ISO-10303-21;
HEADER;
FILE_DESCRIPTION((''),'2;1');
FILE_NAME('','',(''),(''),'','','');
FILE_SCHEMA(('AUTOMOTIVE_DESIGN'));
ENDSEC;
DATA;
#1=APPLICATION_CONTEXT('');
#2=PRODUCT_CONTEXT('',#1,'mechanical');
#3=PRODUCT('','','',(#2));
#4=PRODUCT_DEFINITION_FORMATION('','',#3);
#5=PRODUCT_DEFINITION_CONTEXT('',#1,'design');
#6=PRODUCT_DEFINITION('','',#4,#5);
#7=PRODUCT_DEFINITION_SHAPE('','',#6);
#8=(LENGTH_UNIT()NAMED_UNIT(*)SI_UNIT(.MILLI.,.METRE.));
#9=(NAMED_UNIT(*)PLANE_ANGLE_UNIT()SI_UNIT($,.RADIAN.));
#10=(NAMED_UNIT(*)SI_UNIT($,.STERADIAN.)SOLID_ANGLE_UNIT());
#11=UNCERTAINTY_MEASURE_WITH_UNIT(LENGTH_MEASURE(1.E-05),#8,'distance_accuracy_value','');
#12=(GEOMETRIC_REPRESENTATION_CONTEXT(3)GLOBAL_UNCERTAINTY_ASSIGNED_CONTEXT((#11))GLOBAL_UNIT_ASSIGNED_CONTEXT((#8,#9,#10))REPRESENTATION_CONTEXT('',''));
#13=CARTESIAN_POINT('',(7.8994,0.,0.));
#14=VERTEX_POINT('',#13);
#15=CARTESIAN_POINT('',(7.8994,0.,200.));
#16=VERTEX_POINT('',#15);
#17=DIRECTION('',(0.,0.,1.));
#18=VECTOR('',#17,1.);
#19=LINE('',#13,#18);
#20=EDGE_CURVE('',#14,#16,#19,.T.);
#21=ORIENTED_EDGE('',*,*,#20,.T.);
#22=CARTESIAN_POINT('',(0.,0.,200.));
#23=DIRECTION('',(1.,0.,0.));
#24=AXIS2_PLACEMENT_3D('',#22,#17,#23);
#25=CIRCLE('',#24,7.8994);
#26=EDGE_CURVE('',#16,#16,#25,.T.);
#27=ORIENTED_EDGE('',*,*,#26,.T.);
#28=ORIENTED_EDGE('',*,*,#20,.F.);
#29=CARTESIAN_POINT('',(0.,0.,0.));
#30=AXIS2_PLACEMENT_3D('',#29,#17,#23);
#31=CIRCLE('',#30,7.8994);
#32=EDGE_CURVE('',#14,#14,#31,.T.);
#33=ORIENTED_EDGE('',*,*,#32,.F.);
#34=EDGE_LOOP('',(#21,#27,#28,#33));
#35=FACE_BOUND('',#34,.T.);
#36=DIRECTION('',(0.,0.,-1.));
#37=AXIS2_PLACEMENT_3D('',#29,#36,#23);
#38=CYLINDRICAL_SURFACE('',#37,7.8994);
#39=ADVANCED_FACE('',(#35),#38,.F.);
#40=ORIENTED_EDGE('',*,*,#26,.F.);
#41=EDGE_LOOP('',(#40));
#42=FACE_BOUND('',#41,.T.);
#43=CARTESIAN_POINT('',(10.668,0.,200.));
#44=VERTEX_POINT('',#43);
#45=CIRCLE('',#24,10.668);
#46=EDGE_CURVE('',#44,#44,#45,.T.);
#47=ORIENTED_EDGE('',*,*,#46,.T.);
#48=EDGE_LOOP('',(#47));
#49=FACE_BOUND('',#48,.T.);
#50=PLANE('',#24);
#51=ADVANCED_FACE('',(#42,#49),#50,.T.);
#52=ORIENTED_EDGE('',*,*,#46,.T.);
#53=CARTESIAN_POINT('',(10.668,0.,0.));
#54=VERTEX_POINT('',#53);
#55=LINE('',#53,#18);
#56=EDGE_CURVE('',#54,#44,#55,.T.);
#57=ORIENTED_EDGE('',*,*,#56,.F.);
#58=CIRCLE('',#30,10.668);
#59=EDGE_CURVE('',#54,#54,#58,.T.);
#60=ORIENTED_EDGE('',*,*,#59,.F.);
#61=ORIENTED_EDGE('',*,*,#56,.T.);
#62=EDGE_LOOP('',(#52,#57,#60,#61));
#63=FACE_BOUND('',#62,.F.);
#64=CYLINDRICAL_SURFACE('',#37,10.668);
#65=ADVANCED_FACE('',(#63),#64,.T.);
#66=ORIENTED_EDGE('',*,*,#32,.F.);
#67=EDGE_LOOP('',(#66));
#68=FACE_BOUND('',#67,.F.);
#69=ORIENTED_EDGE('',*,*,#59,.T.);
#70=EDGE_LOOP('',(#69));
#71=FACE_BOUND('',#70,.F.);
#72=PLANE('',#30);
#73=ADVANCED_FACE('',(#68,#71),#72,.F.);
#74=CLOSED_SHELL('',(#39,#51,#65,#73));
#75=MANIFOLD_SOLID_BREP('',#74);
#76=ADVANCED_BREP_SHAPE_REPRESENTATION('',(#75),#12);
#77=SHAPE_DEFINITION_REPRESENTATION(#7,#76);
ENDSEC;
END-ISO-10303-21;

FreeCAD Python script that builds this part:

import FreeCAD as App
import Part
import Sketcher
Q = App.Units.Quantity

doc = App.newDocument("Part")
body = doc.addObject("PartDesign::Body", "Body")

sketch1 = body.newObject("Sketcher::SketchObject", "Sketch")
sketch1.AttachmentSupport = (doc.getObject("XY_Plane"), [""])
sketch1.MapMode = "FlatFace"
sketch1.addGeometry([
    Part.Circle(App.Vector(0, 0, 0), App.Vector(0, 0, 1), 11),
    Part.Circle(App.Vector(0, 0, 0), App.Vector(0, 0, 1), 8),
], False)
sketch1.addConstraint([
    Sketcher.Constraint("Coincident", 0, 3, -1, 1),
    Sketcher.Constraint("Coincident", 1, 3, -1, 1),
    Sketcher.Constraint("Diameter", 0, Q("0.84 in")),
    Sketcher.Constraint("Diameter", 1, Q("0.622 in")),
])
pad1 = body.newObject("PartDesign::Pad", "Pad")
pad1.Profile = sketch1
pad1.Length = 200

doc.recompute()
